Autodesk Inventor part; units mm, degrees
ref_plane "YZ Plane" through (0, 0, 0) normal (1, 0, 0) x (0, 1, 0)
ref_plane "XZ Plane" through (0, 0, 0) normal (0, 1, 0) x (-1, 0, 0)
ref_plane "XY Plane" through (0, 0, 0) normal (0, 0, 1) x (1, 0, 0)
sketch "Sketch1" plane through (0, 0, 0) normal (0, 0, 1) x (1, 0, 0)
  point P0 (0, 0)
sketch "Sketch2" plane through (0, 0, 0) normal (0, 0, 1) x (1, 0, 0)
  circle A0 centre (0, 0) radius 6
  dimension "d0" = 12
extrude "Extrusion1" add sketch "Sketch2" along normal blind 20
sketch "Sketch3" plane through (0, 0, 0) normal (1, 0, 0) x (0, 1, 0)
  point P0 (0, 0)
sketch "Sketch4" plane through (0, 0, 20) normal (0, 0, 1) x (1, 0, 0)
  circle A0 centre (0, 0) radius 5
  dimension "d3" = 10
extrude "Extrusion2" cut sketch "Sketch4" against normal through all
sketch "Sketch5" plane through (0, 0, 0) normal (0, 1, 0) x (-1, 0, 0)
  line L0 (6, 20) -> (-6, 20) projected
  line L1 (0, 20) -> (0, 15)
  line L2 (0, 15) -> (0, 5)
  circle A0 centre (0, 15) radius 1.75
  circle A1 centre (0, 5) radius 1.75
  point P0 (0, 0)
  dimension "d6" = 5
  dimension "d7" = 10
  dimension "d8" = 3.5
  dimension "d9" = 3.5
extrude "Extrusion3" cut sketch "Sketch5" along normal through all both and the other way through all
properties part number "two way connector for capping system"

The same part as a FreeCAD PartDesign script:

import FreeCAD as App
import Part
import Sketcher

V = App.Vector
Q = App.Units.Quantity

doc = App.newDocument("Part")
body = doc.addObject("PartDesign::Body", "Body")

sketch1 = body.newObject("Sketcher::SketchObject", "Sketch")
sketch1.AttachmentSupport = (doc.getObject("XY_Plane"), [""])
sketch1.MapMode = "FlatFace"
sketch1.addGeometry(Part.Circle(V(0, 0, 0), V(0, 0, 1), 6), False)
sketch1.addConstraint([
    Sketcher.Constraint("Coincident", 0, 3, -1, 1),
    Sketcher.Constraint("Diameter", 0, Q("12 mm")),
])
pad1 = body.newObject("PartDesign::Pad", "Pad")
pad1.Profile = sketch1
pad1.Length = 20

sketch2 = body.newObject("Sketcher::SketchObject", "Sketch001")
sketch2.AttachmentSupport = (doc.getObject("XY_Plane"), [""])
sketch2.MapMode = "FlatFace"
sketch2.AttachmentOffset = App.Placement(V(0, 0, 20), App.Rotation())
sketch2.addGeometry(Part.Circle(V(0, 0, 0), V(0, 0, 1), 5), False)
sketch2.addConstraint([
    Sketcher.Constraint("Coincident", 0, 3, -1, 1),
    Sketcher.Constraint("Diameter", 0, Q("10 mm")),
])
pocket1 = body.newObject("PartDesign::Pocket", "Pocket")
pocket1.Profile = sketch2
pocket1.Type = "ThroughAll"

sketch3 = body.newObject("Sketcher::SketchObject", "Sketch002")
sketch3.AttachmentSupport = (doc.getObject("XZ_Plane"), [""])
sketch3.MapMode = "FlatFace"
sketch3.addGeometry([
    Part.Circle(V(0, 15, 0), V(0, 0, 1), 1.8),
    Part.Circle(V(0, 5, 0), V(0, 0, 1), 1.8),
], False)
sketch3.addConstraint([
    Sketcher.Constraint("Equal", 0, 1),
    Sketcher.Constraint("PointOnObject", 0, 3, -2),
    Sketcher.Constraint("PointOnObject", 1, 3, -2),
    Sketcher.Constraint("Diameter", 0, Q("3.5 mm")),
    Sketcher.Constraint("DistanceY", -1, 1, 1, 3, Q("5 mm")),
    Sketcher.Constraint("DistanceY", 1, 3, 0, 3, Q("10 mm")),
])
pocket2 = body.newObject("PartDesign::Pocket", "Pocket001")
pocket2.Profile = sketch3
pocket2.Type = "ThroughAll"
pocket2.Midplane = True

doc.recompute()
